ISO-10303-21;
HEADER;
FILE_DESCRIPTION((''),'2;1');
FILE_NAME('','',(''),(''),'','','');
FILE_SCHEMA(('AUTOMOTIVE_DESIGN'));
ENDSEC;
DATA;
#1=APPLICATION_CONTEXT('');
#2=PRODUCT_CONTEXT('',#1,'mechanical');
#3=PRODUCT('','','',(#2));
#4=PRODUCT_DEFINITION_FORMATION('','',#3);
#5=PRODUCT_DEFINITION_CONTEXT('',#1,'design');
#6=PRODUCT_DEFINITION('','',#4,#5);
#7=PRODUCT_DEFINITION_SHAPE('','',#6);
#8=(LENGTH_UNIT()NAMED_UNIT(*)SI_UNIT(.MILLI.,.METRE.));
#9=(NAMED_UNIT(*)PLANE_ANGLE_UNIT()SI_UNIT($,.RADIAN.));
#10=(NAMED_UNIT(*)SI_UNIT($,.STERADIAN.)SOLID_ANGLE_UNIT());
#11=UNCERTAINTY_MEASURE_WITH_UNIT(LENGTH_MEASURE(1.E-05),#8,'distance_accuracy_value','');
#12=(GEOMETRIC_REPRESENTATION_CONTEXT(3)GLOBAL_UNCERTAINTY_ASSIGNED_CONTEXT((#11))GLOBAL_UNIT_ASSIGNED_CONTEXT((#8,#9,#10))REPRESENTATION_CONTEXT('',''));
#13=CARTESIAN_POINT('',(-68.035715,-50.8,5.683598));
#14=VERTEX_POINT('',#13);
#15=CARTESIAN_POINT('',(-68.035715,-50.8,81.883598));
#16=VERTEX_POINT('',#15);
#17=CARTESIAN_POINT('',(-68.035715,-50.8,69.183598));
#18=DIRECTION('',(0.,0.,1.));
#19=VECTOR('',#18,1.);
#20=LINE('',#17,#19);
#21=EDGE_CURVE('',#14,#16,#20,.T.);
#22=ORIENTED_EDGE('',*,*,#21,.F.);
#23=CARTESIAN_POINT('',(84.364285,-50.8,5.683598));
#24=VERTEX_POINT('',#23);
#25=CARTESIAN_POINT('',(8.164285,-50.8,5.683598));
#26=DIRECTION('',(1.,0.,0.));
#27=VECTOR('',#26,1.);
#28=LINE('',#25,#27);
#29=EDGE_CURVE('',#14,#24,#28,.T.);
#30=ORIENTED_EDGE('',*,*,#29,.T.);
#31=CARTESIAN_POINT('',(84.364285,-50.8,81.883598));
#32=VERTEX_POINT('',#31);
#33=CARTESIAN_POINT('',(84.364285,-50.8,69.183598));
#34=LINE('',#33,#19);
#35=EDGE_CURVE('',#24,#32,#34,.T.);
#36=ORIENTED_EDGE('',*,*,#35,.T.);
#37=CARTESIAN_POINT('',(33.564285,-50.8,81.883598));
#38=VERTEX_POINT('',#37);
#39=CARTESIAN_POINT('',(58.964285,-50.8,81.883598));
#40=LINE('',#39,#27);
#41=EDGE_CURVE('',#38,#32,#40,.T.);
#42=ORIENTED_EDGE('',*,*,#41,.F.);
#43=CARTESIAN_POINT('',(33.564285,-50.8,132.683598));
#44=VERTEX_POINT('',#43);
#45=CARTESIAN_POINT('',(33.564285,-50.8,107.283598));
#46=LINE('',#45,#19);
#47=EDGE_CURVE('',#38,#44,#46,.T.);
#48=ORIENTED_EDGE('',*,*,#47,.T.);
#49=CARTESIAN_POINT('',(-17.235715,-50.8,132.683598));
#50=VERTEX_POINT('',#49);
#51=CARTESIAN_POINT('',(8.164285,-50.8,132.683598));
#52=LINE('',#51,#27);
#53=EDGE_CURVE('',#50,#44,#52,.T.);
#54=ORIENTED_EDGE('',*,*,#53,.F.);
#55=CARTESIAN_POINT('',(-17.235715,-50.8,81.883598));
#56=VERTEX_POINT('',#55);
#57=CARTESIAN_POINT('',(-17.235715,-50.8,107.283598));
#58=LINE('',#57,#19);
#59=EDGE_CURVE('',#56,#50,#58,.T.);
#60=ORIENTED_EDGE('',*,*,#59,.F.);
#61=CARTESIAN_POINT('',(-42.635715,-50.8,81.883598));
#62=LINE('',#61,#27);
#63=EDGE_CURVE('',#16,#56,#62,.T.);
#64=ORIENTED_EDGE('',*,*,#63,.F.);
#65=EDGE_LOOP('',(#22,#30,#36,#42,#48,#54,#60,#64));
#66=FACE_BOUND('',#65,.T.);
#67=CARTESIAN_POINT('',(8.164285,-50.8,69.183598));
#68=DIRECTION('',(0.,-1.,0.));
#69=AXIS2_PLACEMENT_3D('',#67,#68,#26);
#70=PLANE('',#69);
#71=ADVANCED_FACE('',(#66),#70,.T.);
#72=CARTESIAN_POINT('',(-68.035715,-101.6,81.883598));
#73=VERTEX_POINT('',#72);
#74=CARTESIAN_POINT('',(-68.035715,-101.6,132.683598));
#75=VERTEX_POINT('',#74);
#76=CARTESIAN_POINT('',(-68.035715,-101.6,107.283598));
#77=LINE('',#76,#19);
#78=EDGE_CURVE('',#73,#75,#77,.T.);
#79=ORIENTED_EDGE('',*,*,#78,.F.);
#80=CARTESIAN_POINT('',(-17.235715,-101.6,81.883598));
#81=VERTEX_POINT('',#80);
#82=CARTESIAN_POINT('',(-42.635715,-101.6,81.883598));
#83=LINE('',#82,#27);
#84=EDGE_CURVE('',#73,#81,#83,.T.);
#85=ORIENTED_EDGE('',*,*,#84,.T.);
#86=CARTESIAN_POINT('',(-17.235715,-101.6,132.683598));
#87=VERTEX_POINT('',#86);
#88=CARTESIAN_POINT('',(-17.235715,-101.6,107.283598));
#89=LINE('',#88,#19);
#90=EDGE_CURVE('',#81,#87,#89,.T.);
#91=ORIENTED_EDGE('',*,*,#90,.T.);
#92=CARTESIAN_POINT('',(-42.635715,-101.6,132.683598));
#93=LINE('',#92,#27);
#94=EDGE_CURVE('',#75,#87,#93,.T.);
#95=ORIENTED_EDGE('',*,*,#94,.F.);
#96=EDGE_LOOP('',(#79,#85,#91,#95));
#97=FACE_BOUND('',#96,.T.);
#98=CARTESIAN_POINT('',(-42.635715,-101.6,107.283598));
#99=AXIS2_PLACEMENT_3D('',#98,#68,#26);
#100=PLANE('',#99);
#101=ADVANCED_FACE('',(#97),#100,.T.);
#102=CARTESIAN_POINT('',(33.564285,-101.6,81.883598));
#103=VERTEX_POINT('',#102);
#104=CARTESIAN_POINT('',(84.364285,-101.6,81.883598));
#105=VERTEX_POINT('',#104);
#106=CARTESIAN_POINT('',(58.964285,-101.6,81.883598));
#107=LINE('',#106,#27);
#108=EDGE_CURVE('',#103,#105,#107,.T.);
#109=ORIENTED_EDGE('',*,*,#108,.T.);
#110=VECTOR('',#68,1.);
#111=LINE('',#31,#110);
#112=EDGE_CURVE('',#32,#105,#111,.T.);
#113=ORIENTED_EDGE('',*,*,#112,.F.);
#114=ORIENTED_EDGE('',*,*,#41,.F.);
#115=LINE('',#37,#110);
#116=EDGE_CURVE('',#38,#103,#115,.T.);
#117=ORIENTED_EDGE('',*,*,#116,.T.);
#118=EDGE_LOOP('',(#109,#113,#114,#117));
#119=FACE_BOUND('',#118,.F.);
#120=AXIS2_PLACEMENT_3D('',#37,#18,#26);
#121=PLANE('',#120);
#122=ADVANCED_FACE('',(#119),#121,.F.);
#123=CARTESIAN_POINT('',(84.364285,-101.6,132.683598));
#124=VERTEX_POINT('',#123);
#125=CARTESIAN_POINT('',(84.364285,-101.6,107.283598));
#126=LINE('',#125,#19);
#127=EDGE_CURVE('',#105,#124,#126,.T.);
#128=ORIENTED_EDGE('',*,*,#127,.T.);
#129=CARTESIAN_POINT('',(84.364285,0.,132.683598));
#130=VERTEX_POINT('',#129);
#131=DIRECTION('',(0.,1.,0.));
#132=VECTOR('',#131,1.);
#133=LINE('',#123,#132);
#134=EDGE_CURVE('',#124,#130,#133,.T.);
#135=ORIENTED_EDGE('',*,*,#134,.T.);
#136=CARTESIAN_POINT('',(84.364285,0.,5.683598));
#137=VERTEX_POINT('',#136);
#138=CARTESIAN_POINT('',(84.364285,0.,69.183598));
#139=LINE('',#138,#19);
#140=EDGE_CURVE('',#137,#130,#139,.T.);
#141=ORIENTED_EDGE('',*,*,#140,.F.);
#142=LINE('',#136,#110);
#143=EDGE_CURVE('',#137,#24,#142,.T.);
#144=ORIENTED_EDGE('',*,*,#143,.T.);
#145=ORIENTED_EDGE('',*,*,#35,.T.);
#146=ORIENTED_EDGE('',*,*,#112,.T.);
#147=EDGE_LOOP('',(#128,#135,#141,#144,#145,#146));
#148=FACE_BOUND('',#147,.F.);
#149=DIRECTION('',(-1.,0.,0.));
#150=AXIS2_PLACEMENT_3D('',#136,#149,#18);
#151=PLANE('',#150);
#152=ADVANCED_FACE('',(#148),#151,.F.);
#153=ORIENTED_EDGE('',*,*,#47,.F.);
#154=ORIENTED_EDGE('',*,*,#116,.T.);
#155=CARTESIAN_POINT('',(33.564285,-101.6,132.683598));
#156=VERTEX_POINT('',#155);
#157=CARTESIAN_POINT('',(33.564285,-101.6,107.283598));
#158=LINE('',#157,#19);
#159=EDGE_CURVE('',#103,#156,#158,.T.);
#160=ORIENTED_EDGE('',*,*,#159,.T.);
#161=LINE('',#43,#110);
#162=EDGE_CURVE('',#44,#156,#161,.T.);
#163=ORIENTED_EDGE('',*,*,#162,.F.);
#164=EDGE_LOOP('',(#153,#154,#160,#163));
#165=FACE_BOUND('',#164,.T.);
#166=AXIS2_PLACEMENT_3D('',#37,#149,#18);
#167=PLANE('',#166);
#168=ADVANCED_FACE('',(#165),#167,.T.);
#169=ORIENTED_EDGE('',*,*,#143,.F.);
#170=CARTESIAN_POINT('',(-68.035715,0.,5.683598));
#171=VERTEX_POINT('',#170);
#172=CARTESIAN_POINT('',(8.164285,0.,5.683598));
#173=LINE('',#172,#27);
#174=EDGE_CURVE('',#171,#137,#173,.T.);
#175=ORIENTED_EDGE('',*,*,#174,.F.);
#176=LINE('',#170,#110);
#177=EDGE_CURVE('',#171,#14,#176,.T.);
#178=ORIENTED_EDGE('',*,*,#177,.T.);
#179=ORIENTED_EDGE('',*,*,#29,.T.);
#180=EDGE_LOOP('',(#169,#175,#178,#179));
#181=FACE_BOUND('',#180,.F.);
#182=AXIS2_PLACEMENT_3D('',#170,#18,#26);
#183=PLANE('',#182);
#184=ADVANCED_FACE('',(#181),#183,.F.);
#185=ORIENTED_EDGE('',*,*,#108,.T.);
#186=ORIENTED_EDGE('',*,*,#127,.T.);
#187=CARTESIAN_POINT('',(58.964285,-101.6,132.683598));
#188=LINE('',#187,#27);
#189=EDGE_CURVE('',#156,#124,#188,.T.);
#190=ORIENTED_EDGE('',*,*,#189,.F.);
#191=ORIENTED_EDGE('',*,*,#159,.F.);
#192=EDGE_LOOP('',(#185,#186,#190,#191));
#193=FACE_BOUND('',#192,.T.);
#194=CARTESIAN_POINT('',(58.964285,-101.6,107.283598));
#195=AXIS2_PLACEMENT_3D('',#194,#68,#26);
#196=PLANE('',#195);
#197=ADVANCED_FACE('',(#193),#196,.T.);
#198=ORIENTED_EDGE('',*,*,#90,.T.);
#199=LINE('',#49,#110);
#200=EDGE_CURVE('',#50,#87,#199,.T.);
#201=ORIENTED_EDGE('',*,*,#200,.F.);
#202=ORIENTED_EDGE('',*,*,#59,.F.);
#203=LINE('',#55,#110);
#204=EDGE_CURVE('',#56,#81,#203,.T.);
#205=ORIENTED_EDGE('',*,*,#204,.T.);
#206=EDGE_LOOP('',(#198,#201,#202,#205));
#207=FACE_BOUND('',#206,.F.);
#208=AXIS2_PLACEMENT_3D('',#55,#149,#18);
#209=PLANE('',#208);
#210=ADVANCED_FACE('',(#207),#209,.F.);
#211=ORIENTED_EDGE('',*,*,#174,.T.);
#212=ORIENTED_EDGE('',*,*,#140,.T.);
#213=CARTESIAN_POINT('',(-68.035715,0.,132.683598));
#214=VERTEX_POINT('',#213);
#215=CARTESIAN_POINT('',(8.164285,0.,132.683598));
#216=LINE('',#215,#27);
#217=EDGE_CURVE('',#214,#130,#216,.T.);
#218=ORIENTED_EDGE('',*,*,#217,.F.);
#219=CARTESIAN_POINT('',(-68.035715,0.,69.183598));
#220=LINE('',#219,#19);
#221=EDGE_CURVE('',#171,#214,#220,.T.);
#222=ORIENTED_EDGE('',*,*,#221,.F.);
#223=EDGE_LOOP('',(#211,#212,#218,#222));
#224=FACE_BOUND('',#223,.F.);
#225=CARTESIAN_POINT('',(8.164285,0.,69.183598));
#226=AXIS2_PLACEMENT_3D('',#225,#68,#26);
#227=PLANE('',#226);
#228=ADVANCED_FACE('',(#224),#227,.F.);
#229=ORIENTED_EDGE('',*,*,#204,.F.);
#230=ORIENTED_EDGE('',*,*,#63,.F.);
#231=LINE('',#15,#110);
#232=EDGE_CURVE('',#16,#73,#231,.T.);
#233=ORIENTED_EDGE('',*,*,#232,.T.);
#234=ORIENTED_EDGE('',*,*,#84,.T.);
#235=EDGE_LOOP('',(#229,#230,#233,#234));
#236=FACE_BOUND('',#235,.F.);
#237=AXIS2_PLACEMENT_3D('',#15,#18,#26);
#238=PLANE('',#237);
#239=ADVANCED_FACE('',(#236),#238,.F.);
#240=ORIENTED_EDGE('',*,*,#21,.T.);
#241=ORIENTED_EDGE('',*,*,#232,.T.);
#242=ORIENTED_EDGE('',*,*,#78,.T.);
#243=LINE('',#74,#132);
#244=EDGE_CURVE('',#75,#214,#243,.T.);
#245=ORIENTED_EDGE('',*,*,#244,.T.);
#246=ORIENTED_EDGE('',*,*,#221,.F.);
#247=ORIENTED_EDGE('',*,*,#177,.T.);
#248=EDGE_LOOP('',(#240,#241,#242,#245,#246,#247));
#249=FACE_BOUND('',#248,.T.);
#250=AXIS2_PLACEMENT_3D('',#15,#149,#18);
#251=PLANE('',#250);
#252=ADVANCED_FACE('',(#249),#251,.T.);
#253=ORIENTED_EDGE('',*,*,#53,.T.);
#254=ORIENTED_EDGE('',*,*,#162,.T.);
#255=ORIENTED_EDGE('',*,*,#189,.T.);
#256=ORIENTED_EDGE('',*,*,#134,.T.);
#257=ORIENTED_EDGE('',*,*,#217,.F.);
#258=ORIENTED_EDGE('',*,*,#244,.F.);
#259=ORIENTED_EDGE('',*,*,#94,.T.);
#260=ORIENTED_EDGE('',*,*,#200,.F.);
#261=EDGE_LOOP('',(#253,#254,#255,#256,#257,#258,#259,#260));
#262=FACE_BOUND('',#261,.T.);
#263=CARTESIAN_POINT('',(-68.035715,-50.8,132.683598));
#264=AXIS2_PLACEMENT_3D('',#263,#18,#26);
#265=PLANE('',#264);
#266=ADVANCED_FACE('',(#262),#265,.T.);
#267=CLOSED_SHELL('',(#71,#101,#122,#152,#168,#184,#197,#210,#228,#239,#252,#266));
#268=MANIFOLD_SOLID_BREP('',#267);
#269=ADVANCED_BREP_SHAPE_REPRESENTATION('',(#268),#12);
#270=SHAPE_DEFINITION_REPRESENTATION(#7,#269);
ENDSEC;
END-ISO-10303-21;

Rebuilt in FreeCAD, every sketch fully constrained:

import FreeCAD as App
import Part
import Sketcher
Q = App.Units.Quantity


def add_polygon(sketch, points):
    """Adds a closed chain of lines whose ends are joined by coincident constraints."""
    first, n = sketch.GeometryCount, len(points)
    for a, b in zip(points, points[1:] + points[:1]):
        sketch.addGeometry(Part.LineSegment(App.Vector(*a, 0), App.Vector(*b, 0)), False)
    for i in range(n):
        sketch.addConstraint(Sketcher.Constraint("Coincident", first + i, 2, first + (i + 1) % n, 1))

doc = App.newDocument("Part")
params = doc.addObject("Spreadsheet::Sheet", "Params")
for row, (alias, value) in enumerate([
    ("sketch1_width", "6 in"),
    ("sketch1_height", "5 in"),
    ("pad1_length", "2 in"),
    ("sketch2_width", "2 in"),
    ("pad2_length", "2 in"),
], start=1):
    params.set(f"A{row}", alias)
    params.set(f"B{row}", "=" + value)
    params.setAlias(f"B{row}", alias)

body = doc.addObject("PartDesign::Body", "Body")

# Sketch on XZ plane
sketch1 = body.newObject("Sketcher::SketchObject", "Sketch")
sketch1.AttachmentSupport = (doc.getObject("XZ_Plane"), [""])
sketch1.MapMode = "FlatFace"
add_polygon(sketch1, [(-68, 133), (-68, 6), (84, 6), (84, 133)])  # lines 0-3
sketch1.addConstraint([
    Sketcher.Constraint("Vertical", 0),
    Sketcher.Constraint("Horizontal", 1),
    Sketcher.Constraint("Vertical", 2),
    Sketcher.Constraint("Horizontal", 3),
    Sketcher.Constraint("DistanceX", 1, 1, 1, 2, Q("6 in")),
    Sketcher.Constraint("DistanceY", 0, 2, 0, 1, Q("5 in")),
    Sketcher.Constraint("DistanceX", 0, 2, -1, 1, 68.035715),
    Sketcher.Constraint("DistanceY", -1, 1, 0, 2, 5.683598),
])
sketch1.setExpression("Constraints[8]", "Params.sketch1_width")
sketch1.setExpression("Constraints[9]", "Params.sketch1_height")
pad1 = body.newObject("PartDesign::Pad", "Pad")
pad1.Profile = sketch1
pad1.setExpression("Length", "Params.pad1_length")

# Sketch on XZ plane
sketch2 = body.newObject("Sketcher::SketchObject", "Sketch001")
sketch2.AttachmentSupport = (doc.getObject("XZ_Plane"), [""])
sketch2.MapMode = "FlatFace"
sketch2.AttachmentOffset = App.Placement(App.Vector(0, 0, 2 * 25.4), App.Rotation())
add_polygon(sketch2, [(-68, 133), (-68, 82), (-17, 82), (-17, 133)])  # lines 0-3
add_polygon(sketch2, [(34, 133), (34, 82), (84, 82), (84, 133)])  # lines 4-7
sketch2.addConstraint([
    Sketcher.Constraint("Vertical", 0),
    Sketcher.Constraint("Horizontal", 1),
    Sketcher.Constraint("Vertical", 2),
    Sketcher.Constraint("Horizontal", 3),
    Sketcher.Constraint("Vertical", 4),
    Sketcher.Constraint("Horizontal", 5),
    Sketcher.Constraint("Vertical", 6),
    Sketcher.Constraint("Horizontal", 7),
    Sketcher.Constraint("Horizontal", 1, 2, 4, 2),
    Sketcher.Constraint("Horizontal", 3, 2, 6, 2),
    Sketcher.Constraint("Equal", 3, 5),
    Sketcher.Constraint("Equal", 7, 0),
    Sketcher.Constraint("DistanceX", 1, 1, 1, 2, Q("2 in")),
    Sketcher.Constraint("DistanceX", 1, 2, 4, 2, Q("2 in")),
    Sketcher.Constraint("DistanceY", -1, 1, 0, 2, 81.883598),
    Sketcher.Constraint("DistanceX", 0, 2, -1, 1, 68.035715),
])
sketch2.setExpression("Constraints[20]", "Params.sketch2_width")
pad2 = body.newObject("PartDesign::Pad", "Pad001")
pad2.Profile = sketch2
pad2.setExpression("Length", "Params.pad2_length")

doc.recompute()
